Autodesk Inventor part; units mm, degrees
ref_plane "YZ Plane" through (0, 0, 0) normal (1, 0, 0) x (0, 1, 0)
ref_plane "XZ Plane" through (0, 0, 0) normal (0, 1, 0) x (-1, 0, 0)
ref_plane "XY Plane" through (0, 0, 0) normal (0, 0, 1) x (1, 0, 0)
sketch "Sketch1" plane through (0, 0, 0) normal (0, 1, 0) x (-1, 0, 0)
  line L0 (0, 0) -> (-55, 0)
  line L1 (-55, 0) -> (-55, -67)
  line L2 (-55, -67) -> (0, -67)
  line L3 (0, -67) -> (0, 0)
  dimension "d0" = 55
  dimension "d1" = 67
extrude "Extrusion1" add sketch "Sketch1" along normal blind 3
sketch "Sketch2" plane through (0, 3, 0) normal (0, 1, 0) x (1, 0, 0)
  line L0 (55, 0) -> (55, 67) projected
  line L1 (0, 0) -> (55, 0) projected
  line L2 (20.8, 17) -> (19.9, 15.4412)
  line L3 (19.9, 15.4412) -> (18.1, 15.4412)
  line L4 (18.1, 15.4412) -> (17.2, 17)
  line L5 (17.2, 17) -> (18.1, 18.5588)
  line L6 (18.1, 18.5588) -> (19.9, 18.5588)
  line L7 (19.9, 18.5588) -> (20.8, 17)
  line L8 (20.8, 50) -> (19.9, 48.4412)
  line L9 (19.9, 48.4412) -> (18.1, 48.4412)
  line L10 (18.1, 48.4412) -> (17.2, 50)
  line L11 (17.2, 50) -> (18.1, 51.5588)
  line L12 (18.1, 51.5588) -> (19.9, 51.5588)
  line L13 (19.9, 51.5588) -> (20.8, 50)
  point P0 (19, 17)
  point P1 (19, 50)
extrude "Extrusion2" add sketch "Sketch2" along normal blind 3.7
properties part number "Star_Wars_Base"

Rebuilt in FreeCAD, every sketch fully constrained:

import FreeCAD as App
import Part
import Sketcher

V = App.Vector
Q = App.Units.Quantity


def add_polygon(sketch, points):
    """Adds a closed chain of lines whose ends are joined by coincident constraints."""
    first, n = sketch.GeometryCount, len(points)
    for a, b in zip(points, points[1:] + points[:1]):
        sketch.addGeometry(Part.LineSegment(App.Vector(*a, 0), App.Vector(*b, 0)), False)
    for i in range(n):
        sketch.addConstraint(Sketcher.Constraint("Coincident", first + i, 2, first + (i + 1) % n, 1))

doc = App.newDocument("Part")
body = doc.addObject("PartDesign::Body", "Body")

sketch1 = body.newObject("Sketcher::SketchObject", "Sketch")
sketch1.AttachmentSupport = (doc.getObject("XZ_Plane"), [""])
sketch1.MapMode = "FlatFace"
add_polygon(sketch1, [(0, -67), (0, 0), (55, 0), (55, -67)])
sketch1.addConstraint([
    Sketcher.Constraint("Vertical", 0),
    Sketcher.Constraint("Horizontal", 1),
    Sketcher.Constraint("Vertical", 2),
    Sketcher.Constraint("Horizontal", 3),
    Sketcher.Constraint("Coincident", 0, 2, -1, 1),
    Sketcher.Constraint("DistanceX", 1, 1, 1, 2, 55.0),
    Sketcher.Constraint("DistanceY", 0, 1, 0, 2, 67.0),
])
pad1 = body.newObject("PartDesign::Pad", "Pad")
pad1.Profile = sketch1
pad1.Length = 3
pad1.Reversed = True

sketch2 = body.newObject("Sketcher::SketchObject", "Sketch001")
sketch2.AttachmentSupport = (doc.getObject("XZ_Plane"), [""])
sketch2.MapMode = "FlatFace"
sketch2.AttachmentOffset = App.Placement(V(0, 0, -3), App.Rotation())
add_polygon(sketch2, [(19.9, -15.4), (20.8, -17), (19.9, -18.6), (18.1, -18.6), (17.2, -17), (18.1, -15.4)])
add_polygon(sketch2, [(19.9, -48.4), (20.8, -50), (19.9, -51.6), (18.1, -51.6), (17.2, -50), (18.1, -48.4)])
sketch2.addConstraint([
    Sketcher.Constraint("Horizontal", 2),
    Sketcher.Constraint("Horizontal", 5),
    Sketcher.Constraint("Horizontal", 8),
    Sketcher.Constraint("Horizontal", 11),
    Sketcher.Constraint("Parallel", 0, 3),
    Sketcher.Constraint("Parallel", 1, 4),
    Sketcher.Constraint("Parallel", 3, 6),
    Sketcher.Constraint("Parallel", 4, 7),
    Sketcher.Constraint("Parallel", 6, 9),
    Sketcher.Constraint("Parallel", 7, 10),
    Sketcher.Constraint("Horizontal", 0, 2, 3, 2),
    Sketcher.Constraint("Horizontal", 6, 2, 9, 2),
    Sketcher.Constraint("Vertical", 2, 2, 4, 2),
    Sketcher.Constraint("Vertical", 1, 2, 5, 2),
    Sketcher.Constraint("Vertical", 0, 2, 6, 2),
    Sketcher.Constraint("Vertical", 5, 2, 7, 2),
    Sketcher.Constraint("Vertical", 4, 2, 8, 2),
    Sketcher.Constraint("Vertical", 8, 2, 10, 2),
    Sketcher.Constraint("Angle", 0, Q("-59.9993 deg")),
    Sketcher.Constraint("DistanceX", 2, 2, 2, 1, 1.8),
    Sketcher.Constraint("DistanceY", 0, 2, -1, 1, 17.0),
    Sketcher.Constraint("DistanceY", 6, 2, -1, 1, 50.0),
    Sketcher.Constraint("Distance", 0, 1.8),
    Sketcher.Constraint("DistanceX", -1, 1, 0, 2, 20.8),
])
pad2 = body.newObject("PartDesign::Pad", "Pad001")
pad2.Profile = sketch2
pad2.Length = 3.7
pad2.Reversed = True

doc.recompute()
